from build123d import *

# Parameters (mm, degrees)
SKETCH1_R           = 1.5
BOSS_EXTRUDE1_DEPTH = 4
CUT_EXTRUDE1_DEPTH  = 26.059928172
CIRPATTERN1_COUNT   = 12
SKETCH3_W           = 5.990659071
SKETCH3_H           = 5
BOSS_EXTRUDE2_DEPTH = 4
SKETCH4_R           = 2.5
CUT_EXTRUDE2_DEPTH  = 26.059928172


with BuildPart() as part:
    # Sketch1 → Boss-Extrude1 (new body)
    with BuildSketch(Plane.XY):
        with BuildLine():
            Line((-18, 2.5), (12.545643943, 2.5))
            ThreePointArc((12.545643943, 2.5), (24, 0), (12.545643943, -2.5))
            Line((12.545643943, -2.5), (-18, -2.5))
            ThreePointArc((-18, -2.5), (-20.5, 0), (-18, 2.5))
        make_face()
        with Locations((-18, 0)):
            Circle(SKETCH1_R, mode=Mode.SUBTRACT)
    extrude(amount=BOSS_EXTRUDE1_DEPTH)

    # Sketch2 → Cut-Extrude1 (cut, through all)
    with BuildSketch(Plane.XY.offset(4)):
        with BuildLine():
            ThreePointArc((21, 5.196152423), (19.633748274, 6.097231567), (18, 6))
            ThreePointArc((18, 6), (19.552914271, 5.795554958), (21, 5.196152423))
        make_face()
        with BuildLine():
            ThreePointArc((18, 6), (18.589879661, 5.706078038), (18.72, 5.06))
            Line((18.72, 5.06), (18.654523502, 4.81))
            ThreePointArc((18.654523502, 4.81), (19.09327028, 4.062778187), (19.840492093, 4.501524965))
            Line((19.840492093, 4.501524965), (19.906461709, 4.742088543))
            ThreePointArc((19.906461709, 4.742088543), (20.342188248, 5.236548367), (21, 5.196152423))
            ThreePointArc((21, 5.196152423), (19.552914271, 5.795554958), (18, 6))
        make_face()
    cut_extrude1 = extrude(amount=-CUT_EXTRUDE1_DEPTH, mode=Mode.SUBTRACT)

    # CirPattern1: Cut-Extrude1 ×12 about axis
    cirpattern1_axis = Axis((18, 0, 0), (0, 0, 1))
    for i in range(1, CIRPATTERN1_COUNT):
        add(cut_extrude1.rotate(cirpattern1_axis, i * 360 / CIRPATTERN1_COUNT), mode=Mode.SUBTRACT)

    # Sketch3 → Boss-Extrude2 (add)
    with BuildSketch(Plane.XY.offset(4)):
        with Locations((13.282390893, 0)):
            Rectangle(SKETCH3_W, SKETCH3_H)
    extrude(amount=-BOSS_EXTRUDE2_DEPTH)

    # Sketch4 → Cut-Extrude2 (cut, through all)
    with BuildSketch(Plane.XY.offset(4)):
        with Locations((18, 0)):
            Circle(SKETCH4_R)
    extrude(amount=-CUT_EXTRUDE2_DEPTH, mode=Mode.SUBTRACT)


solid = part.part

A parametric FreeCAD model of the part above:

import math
import FreeCAD as App
import Part
import Sketcher

V = App.Vector

doc = App.newDocument("Part")
body = doc.addObject("PartDesign::Body", "Body")
body.AllowCompound = True

sketch1 = body.newObject("Sketcher::SketchObject", "Sketch")
sketch1.AttachmentSupport = (doc.getObject("XY_Plane"), [""])
sketch1.MapMode = "FlatFace"
sketch1.addGeometry([
    Part.LineSegment(V(12.545644, 2.5, 0), V(-18, 2.5, 0)),
    Part.ArcOfCircle(Part.Circle(V(-18, 0, 0), V(0, 0, 1), 2.5), math.radians(90), math.radians(270)),
    Part.LineSegment(V(-18, -2.5, 0), V(12.545644, -2.5, 0)),
    Part.ArcOfCircle(Part.Circle(V(18, 0, 0), V(0, 0, 1), 6), math.radians(-155.375682), math.radians(155.375682)),
    Part.Circle(V(-18, 0, 0), V(0, 0, 1), 1.5),
], False)
sketch1.addConstraint([
    Sketcher.Constraint("Tangent", 0, 2, 1, 1),
    Sketcher.Constraint("Tangent", 1, 2, 2, 1),
    Sketcher.Constraint("Coincident", 2, 2, 3, 1),
    Sketcher.Constraint("Coincident", 3, 2, 0, 1),
    Sketcher.Constraint("Horizontal", 0),
    Sketcher.Constraint("Horizontal", 2),
    Sketcher.Constraint("Coincident", 4, 3, 1, 3),
    Sketcher.Constraint("Symmetric", 1, 3, 3, 3, -1, 1),
    Sketcher.Constraint("PointOnObject", 1, 3, -1),
    Sketcher.Constraint("Diameter", 4, 3.0),
    Sketcher.Constraint("Radius", 3, 6.0),
    Sketcher.Constraint("Radius", 1, 2.5),
    Sketcher.Constraint("DistanceX", 1, 3, -1, 1, 18.0),
])
pad1 = body.newObject("PartDesign::Pad", "Pad")
pad1.Profile = sketch1
pad1.Length = 4

sketch2 = body.newObject("Sketcher::SketchObject", "Sketch001")
sketch2.AttachmentSupport = (doc.getObject("XY_Plane"), [""])
sketch2.MapMode = "FlatFace"
sketch2.AttachmentOffset = App.Placement(V(0, 0, 4), App.Rotation())
sketch2.addGeometry([
    Part.ArcOfCircle(Part.Circle(V(18.962968, 3.593847, 0), V(0, 0, 1), 2.591695), math.radians(38.188186), math.radians(111.811814)),
    Part.ArcOfCircle(Part.Circle(V(17.994471, 5.25002, 0), V(0, 0, 1), 0.75), math.radians(-14.676459), math.radians(89.577616)),
    Part.LineSegment(V(18.72, 5.06, 0), V(18.654524, 4.81, 0)),
    Part.ArcOfCircle(Part.Circle(V(19.247508, 4.655762, 0), V(0, 0, 1), 0.612715), math.radians(165.420209), math.radians(345.420209)),
    Part.LineSegment(V(19.840492, 4.501525, 0), V(19.906462, 4.742089, 0)),
    Part.ArcOfCircle(Part.Circle(V(20.629798, 4.543887, 0), V(0, 0, 1), 0.75), math.radians(60.422385), math.radians(164.676459)),
], False)
sketch2.addConstraint([
    Sketcher.Constraint("Coincident", 0, 2, 1, 2),
    Sketcher.Constraint("Tangent", 1, 1, 2, 1),
    Sketcher.Constraint("Coincident", 2, 2, 3, 1),
    Sketcher.Constraint("Coincident", 3, 2, 4, 1),
    Sketcher.Constraint("Coincident", 4, 2, 5, 2),
    Sketcher.Constraint("Coincident", 5, 1, 0, 1),
    Sketcher.Constraint("Equal", 1, 5),
    Sketcher.Constraint("Radius", 1, 0.75),
    Sketcher.Constraint("DistanceX", -1, 1, 0, 2, 18.0),
    Sketcher.Constraint("DistanceY", -1, 1, 0, 2, 6.0),
    Sketcher.Constraint("DistanceX", -1, 1, 5, 1, 21.0),
    Sketcher.Constraint("DistanceX", -1, 1, 1, 1, 18.72),
    Sketcher.Constraint("DistanceY", -1, 1, 1, 1, 5.06),
    Sketcher.Constraint("DistanceY", -1, 1, 2, 2, 4.81),
    Sketcher.Constraint("Radius", 0, 2.591695),
    Sketcher.Constraint("Radius", 3, 0.612715),
    Sketcher.Constraint("DistanceX", -1, 1, 5, 3, 20.629798),
    Sketcher.Constraint("DistanceX", -1, 1, 0, 3, 18.962968),
    Sketcher.Constraint("DistanceX", -1, 1, 4, 2, 19.906462),
    Sketcher.Constraint("DistanceX", 0, 3, 3, 3, 0.28454),
    Sketcher.Constraint("DistanceY", 3, 2, 5, 3, 0.042362),
])
pocket1 = body.newObject("PartDesign::Pocket", "Pocket")
pocket1.Profile = sketch2
pocket1.Type = "ThroughAll"
doc.recompute()

datumline = body.newObject("PartDesign::Line", "DatumLine")
datumline.Placement = App.Placement(V(18, 0, 0), App.Rotation(V(0, 0, 1), V(0, 0, 1)))
polarpattern = body.newObject("PartDesign::PolarPattern", "PolarPattern")
polarpattern.Originals = [pocket1]
polarpattern.Axis = (datumline, [""])
polarpattern.Angle = 360
polarpattern.Occurrences = 12
body.Tip = polarpattern

sketch3 = body.newObject("Sketcher::SketchObject", "Sketch002")
sketch3.AttachmentSupport = (doc.getObject("XY_Plane"), [""])
sketch3.MapMode = "FlatFace"
sketch3.AttachmentOffset = App.Placement(V(0, 0, 4), App.Rotation())
sketch3.addGeometry([
    Part.LineSegment(V(10.287061, 2.5, 0), V(10.287061, -2.5, 0)),
    Part.LineSegment(V(10.287061, -2.5, 0), V(16.27772, -2.5, 0)),
    Part.LineSegment(V(16.27772, -2.5, 0), V(16.27772, 2.5, 0)),
    Part.LineSegment(V(16.27772, 2.5, 0), V(10.287061, 2.5, 0)),
], False)
sketch3.addConstraint([
    Sketcher.Constraint("Coincident", 0, 2, 1, 1),
    Sketcher.Constraint("Coincident", 1, 2, 2, 1),
    Sketcher.Constraint("Coincident", 2, 2, 3, 1),
    Sketcher.Constraint("Coincident", 3, 2, 0, 1),
    Sketcher.Constraint("Vertical", 0),
    Sketcher.Constraint("Horizontal", 1),
    Sketcher.Constraint("Vertical", 2),
    Sketcher.Constraint("Horizontal", 3),
    Sketcher.Constraint("DistanceY", 0, 2, 0, 1, 5.0),
    Sketcher.Constraint("DistanceY", 0, 2, -1, 1, 2.5),
    Sketcher.Constraint("DistanceX", 1, 1, 1, 2, 5.990659),
    Sketcher.Constraint("DistanceX", -1, 1, 0, 2, 10.287061),
])
pad2 = body.newObject("PartDesign::Pad", "Pad001")
pad2.Profile = sketch3
pad2.Length = 4
pad2.Reversed = True

sketch4 = body.newObject("Sketcher::SketchObject", "Sketch003")
sketch4.AttachmentSupport = (doc.getObject("XY_Plane"), [""])
sketch4.MapMode = "FlatFace"
sketch4.AttachmentOffset = App.Placement(V(0, 0, 4), App.Rotation())
sketch4.addGeometry(Part.Circle(V(18, 0, 0), V(0, 0, 1), 2.5), False)
sketch4.addConstraint([
    Sketcher.Constraint("PointOnObject", 0, 3, -1),
    Sketcher.Constraint("Diameter", 0, 5.0),
    Sketcher.Constraint("DistanceX", -1, 1, 0, 3, 18.0),
])
pocket2 = body.newObject("PartDesign::Pocket", "Pocket001")
pocket2.Profile = sketch4
pocket2.Type = "ThroughAll"

doc.recompute()
